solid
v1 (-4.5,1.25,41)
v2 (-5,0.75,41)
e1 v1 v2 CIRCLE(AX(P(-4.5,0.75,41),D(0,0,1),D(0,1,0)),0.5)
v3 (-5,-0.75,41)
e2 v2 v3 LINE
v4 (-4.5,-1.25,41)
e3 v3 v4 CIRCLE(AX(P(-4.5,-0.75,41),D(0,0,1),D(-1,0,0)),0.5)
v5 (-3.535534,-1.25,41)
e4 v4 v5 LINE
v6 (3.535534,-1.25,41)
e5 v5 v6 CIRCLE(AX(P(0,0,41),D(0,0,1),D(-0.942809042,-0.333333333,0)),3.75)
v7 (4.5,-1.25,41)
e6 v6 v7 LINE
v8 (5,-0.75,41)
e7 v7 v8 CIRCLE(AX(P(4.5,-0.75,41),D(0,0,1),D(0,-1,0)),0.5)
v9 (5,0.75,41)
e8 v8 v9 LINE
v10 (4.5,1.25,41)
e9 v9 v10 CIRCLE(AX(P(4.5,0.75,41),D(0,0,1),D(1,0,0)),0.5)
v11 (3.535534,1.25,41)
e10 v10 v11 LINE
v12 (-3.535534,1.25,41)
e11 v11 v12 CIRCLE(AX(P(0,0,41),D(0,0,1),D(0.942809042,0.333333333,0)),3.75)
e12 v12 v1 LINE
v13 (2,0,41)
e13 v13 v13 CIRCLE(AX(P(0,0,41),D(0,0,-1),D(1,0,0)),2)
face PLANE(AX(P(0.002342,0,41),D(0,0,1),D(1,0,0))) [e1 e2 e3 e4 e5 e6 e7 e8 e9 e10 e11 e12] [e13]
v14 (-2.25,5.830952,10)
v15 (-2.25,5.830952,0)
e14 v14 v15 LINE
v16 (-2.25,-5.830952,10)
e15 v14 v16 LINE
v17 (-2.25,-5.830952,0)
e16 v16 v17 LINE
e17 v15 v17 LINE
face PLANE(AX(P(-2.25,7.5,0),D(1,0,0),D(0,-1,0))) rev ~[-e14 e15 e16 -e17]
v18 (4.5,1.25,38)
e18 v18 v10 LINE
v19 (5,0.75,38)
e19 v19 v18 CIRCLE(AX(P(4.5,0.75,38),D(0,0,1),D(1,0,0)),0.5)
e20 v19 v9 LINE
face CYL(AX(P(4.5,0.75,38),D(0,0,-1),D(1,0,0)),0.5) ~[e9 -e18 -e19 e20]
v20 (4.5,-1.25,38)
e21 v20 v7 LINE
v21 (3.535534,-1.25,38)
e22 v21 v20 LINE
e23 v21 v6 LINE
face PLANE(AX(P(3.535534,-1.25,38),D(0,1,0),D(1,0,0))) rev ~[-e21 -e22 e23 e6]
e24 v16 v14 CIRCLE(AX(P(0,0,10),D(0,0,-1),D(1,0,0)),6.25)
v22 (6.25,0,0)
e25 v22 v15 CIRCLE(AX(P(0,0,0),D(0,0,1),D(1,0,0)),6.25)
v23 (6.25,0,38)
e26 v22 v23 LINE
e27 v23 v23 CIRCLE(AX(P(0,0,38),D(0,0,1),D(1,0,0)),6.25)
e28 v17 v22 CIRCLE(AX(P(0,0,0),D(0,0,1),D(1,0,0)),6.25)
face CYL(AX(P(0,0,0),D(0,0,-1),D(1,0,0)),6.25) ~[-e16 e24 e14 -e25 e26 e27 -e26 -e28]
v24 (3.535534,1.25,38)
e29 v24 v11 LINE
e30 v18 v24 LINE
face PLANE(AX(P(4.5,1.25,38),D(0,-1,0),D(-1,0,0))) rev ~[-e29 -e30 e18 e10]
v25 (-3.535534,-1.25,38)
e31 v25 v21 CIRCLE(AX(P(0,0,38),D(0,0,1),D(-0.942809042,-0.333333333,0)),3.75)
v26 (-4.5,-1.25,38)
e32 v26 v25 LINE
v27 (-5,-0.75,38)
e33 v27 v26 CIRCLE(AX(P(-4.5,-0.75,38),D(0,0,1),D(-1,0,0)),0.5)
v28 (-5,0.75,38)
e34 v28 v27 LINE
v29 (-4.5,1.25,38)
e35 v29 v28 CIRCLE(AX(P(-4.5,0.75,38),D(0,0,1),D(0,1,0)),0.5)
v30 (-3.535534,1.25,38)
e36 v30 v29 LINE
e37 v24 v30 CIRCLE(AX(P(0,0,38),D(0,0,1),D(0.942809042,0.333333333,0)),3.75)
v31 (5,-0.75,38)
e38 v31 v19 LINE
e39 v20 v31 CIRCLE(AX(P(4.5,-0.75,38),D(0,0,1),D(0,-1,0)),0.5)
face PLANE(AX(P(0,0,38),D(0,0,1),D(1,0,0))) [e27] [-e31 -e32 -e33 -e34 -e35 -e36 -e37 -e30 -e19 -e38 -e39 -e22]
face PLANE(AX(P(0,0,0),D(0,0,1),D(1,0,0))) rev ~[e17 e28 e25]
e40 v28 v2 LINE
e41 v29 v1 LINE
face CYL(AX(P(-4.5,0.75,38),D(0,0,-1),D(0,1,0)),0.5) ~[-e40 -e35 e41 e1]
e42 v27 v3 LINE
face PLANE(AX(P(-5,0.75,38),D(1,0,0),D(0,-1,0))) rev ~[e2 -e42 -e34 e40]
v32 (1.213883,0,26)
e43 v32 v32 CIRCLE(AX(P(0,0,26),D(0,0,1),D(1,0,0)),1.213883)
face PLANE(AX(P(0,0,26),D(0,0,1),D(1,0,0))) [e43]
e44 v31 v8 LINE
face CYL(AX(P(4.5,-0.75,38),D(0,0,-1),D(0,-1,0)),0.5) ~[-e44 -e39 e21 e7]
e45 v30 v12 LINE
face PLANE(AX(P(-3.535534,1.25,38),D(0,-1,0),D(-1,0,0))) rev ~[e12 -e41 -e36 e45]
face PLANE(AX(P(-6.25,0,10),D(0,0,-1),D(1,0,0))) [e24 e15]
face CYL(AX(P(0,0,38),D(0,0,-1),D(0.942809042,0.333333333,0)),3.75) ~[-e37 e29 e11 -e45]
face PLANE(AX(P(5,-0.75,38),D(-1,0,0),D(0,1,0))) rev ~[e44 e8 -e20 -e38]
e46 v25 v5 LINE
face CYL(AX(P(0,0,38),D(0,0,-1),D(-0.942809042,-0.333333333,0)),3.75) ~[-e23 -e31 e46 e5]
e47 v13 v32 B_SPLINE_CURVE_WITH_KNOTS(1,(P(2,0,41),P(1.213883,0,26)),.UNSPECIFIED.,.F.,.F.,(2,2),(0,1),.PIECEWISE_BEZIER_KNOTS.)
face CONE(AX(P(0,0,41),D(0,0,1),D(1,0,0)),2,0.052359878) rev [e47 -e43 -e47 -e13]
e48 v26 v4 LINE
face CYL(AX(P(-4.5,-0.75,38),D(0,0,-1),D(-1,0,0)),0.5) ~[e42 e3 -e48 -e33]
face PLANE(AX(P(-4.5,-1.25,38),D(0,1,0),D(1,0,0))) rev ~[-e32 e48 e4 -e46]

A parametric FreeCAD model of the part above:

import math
import FreeCAD as App
import Part
import Sketcher

V = App.Vector
Q = App.Units.Quantity

doc = App.newDocument("Part")
params = doc.addObject("Spreadsheet::Sheet", "Params")
for row, (alias, value) in enumerate([
    ("sketch1_diameter", "12.5 mm"),
    ("pad1_length", "38 mm"),
    ("sketch2_radius", "0.5 mm"),
    ("sketch2_radius2", "3.75 mm"),
    ("sketch2_height", "1.5 mm"),
    ("pad2_length", "3 mm"),
    ("sketch3_diameter", "4 mm"),
    ("pocket1_length", "15 mm"),
    ("pocket1_taper", "-3 deg"),
    ("sketch4_width", "8 mm"),
    ("sketch4_height", "15 mm"),
    ("pocket2_length", "10 mm"),
], start=1):
    params.set(f"A{row}", alias)
    params.set(f"B{row}", "=" + value)
    params.setAlias(f"B{row}", alias)

body = doc.addObject("PartDesign::Body", "Body")

# Sketch on XY plane
sketch1 = body.newObject("Sketcher::SketchObject", "Sketch")
sketch1.AttachmentSupport = (doc.getObject("XY_Plane"), [""])
sketch1.MapMode = "FlatFace"
sketch1.addGeometry(Part.Circle(V(0, 0, 0), V(0, 0, 1), 6), False)
sketch1.addConstraint(Sketcher.Constraint("Coincident", 0, 3, -1, 1))
sketch1.addConstraint(Sketcher.Constraint("Diameter", 0, Q("12.5 mm")))
sketch1.setExpression("Constraints[1]", "Params.sketch1_diameter")
pad1 = body.newObject("PartDesign::Pad", "Pad")
pad1.Profile = sketch1
pad1.setExpression("Length", "Params.pad1_length")

# Sketch on XY plane
sketch2 = body.newObject("Sketcher::SketchObject", "Sketch001")
sketch2.AttachmentSupport = (doc.getObject("XY_Plane"), [""])
sketch2.MapMode = "FlatFace"
sketch2.AttachmentOffset = App.Placement(V(0, 0, 38), App.Rotation())
sketch2.addGeometry(Part.ArcOfCircle(Part.Circle(V(0, 0, 0), V(0, 0, 1), 3.8), math.radians(-161), math.radians(-19)), False)
sketch2.addGeometry(Part.LineSegment(V(3.5, -1.2, 0), V(4.5, -1.2, 0)), False)
sketch2.addGeometry(Part.ArcOfCircle(Part.Circle(V(4.5, -0.8, 0), V(0, 0, 1), 0.5), math.radians(-90), math.radians(0)), False)
sketch2.addGeometry(Part.LineSegment(V(5, -0.8, 0), V(5, 0.8, 0)), False)
sketch2.addGeometry(Part.ArcOfCircle(Part.Circle(V(4.5, 0.8, 0), V(0, 0, 1), 0.5), math.radians(0), math.radians(90)), False)
sketch2.addGeometry(Part.LineSegment(V(4.5, 1.2, 0), V(3.5, 1.2, 0)), False)
sketch2.addGeometry(Part.ArcOfCircle(Part.Circle(V(0, 0, 0), V(0, 0, 1), 3.8), math.radians(19), math.radians(161)), False)
sketch2.addGeometry(Part.LineSegment(V(-3.5, 1.2, 0), V(-4.5, 1.2, 0)), False)
sketch2.addGeometry(Part.ArcOfCircle(Part.Circle(V(-4.5, 0.8, 0), V(0, 0, 1), 0.5), math.radians(90), math.radians(180)), False)
sketch2.addGeometry(Part.LineSegment(V(-5, 0.8, 0), V(-5, -0.8, 0)), False)
sketch2.addGeometry(Part.ArcOfCircle(Part.Circle(V(-4.5, -0.8, 0), V(0, 0, 1), 0.5), math.radians(180), math.radians(270)), False)
sketch2.addGeometry(Part.LineSegment(V(-4.5, -1.2, 0), V(-3.5, -1.2, 0)), False)
sketch2.addConstraint(Sketcher.Constraint("Coincident", 0, 2, 1, 1))
sketch2.addConstraint(Sketcher.Constraint("Tangent", 1, 2, 2, 1))
sketch2.addConstraint(Sketcher.Constraint("Tangent", 2, 2, 3, 1))
sketch2.addConstraint(Sketcher.Constraint("Tangent", 3, 2, 4, 1))
sketch2.addConstraint(Sketcher.Constraint("Tangent", 4, 2, 5, 1))
sketch2.addConstraint(Sketcher.Constraint("Coincident", 5, 2, 6, 1))
sketch2.addConstraint(Sketcher.Constraint("Coincident", 6, 2, 7, 1))
sketch2.addConstraint(Sketcher.Constraint("Tangent", 7, 2, 8, 1))
sketch2.addConstraint(Sketcher.Constraint("Tangent", 8, 2, 9, 1))
sketch2.addConstraint(Sketcher.Constraint("Tangent", 9, 2, 10, 1))
sketch2.addConstraint(Sketcher.Constraint("Tangent", 10, 2, 11, 1))
sketch2.addConstraint(Sketcher.Constraint("Coincident", 11, 2, 0, 1))
sketch2.addConstraint(Sketcher.Constraint("Horizontal", 1))
sketch2.addConstraint(Sketcher.Constraint("Vertical", 3))
sketch2.addConstraint(Sketcher.Constraint("Horizontal", 5))
sketch2.addConstraint(Sketcher.Constraint("Horizontal", 7))
sketch2.addConstraint(Sketcher.Constraint("Vertical", 9))
sketch2.addConstraint(Sketcher.Constraint("Horizontal", 11))
sketch2.addConstraint(Sketcher.Constraint("Coincident", 0, 3, -1, 1))
sketch2.addConstraint(Sketcher.Constraint("Coincident", 6, 3, -1, 1))
sketch2.addConstraint(Sketcher.Constraint("Equal", 2, 4))
sketch2.addConstraint(Sketcher.Constraint("Equal", 0, 6))
sketch2.addConstraint(Sketcher.Constraint("Equal", 4, 8))
sketch2.addConstraint(Sketcher.Constraint("Equal", 8, 10))
sketch2.addConstraint(Sketcher.Constraint("Symmetric", 2, 3, 8, 3, -1, 1))
sketch2.addConstraint(Sketcher.Constraint("Horizontal", 4, 3, 8, 3))
sketch2.addConstraint(Sketcher.Constraint("Horizontal", 2, 3, 10, 3))
sketch2.addConstraint(Sketcher.Constraint("Radius", 2, Q("0.5 mm")))
sketch2.addConstraint(Sketcher.Constraint("Radius", 0, Q("3.75 mm")))
sketch2.addConstraint(Sketcher.Constraint("DistanceY", 3, 1, 3, 2, Q("1.5 mm")))
sketch2.addConstraint(Sketcher.Constraint("DistanceX", -1, 1, 2, 2, Q("5 mm")))
sketch2.setExpression("Constraints[27]", "Params.sketch2_radius")
sketch2.setExpression("Constraints[28]", "Params.sketch2_radius2")
sketch2.setExpression("Constraints[29]", "Params.sketch2_height")
pad2 = body.newObject("PartDesign::Pad", "Pad001")
pad2.Profile = sketch2
pad2.setExpression("Length", "Params.pad2_length")

# Sketch on XY plane
sketch3 = body.newObject("Sketcher::SketchObject", "Sketch002")
sketch3.AttachmentSupport = (doc.getObject("XY_Plane"), [""])
sketch3.MapMode = "FlatFace"
sketch3.AttachmentOffset = App.Placement(V(0, 0, 41), App.Rotation())
sketch3.addGeometry(Part.Circle(V(0, 0, 0), V(0, 0, 1), 2), False)
sketch3.addConstraint(Sketcher.Constraint("Coincident", 0, 3, -1, 1))
sketch3.addConstraint(Sketcher.Constraint("Diameter", 0, Q("4 mm")))
sketch3.setExpression("Constraints[1]", "Params.sketch3_diameter")
pocket1 = body.newObject("PartDesign::Pocket", "Pocket")
pocket1.Profile = sketch3
pocket1.setExpression("Length", "Params.pocket1_length")
pocket1.setExpression("TaperAngle", "Params.pocket1_taper")

# Sketch on XY plane
sketch4 = body.newObject("Sketcher::SketchObject", "Sketch003")
sketch4.AttachmentSupport = (doc.getObject("XY_Plane"), [""])
sketch4.MapMode = "FlatFace"
sketch4.addGeometry(Part.LineSegment(V(-10, -8, 0), V(-10, 8, 0)), False)
sketch4.addGeometry(Part.LineSegment(V(-10, 8, 0), V(-2, 8, 0)), False)
sketch4.addGeometry(Part.LineSegment(V(-2, 8, 0), V(-2, -8, 0)), False)
sketch4.addGeometry(Part.LineSegment(V(-2, -8, 0), V(-10, -8, 0)), False)
sketch4.addConstraint(Sketcher.Constraint("Coincident", 0, 2, 1, 1))
sketch4.addConstraint(Sketcher.Constraint("Coincident", 1, 2, 2, 1))
sketch4.addConstraint(Sketcher.Constraint("Coincident", 2, 2, 3, 1))
sketch4.addConstraint(Sketcher.Constraint("Coincident", 3, 2, 0, 1))
sketch4.addConstraint(Sketcher.Constraint("Vertical", 0))
sketch4.addConstraint(Sketcher.Constraint("Horizontal", 1))
sketch4.addConstraint(Sketcher.Constraint("Vertical", 2))
sketch4.addConstraint(Sketcher.Constraint("Horizontal", 3))
sketch4.addConstraint(Sketcher.Constraint("DistanceX", 1, 1, 1, 2, Q("8 mm")))
sketch4.addConstraint(Sketcher.Constraint("DistanceY", 0, 1, 0, 2, Q("15 mm")))
sketch4.addConstraint(Sketcher.Constraint("DistanceY", -1, 1, 0, 2, Q("7.5 mm")))
sketch4.addConstraint(Sketcher.Constraint("DistanceX", 0, 2, -1, 1, Q("10.25 mm")))
sketch4.setExpression("Constraints[8]", "Params.sketch4_width")
sketch4.setExpression("Constraints[9]", "Params.sketch4_height")
pocket2 = body.newObject("PartDesign::Pocket", "Pocket001")
pocket2.Profile = sketch4
pocket2.setExpression("Length", "Params.pocket2_length")
pocket2.Reversed = True

doc.recompute()
